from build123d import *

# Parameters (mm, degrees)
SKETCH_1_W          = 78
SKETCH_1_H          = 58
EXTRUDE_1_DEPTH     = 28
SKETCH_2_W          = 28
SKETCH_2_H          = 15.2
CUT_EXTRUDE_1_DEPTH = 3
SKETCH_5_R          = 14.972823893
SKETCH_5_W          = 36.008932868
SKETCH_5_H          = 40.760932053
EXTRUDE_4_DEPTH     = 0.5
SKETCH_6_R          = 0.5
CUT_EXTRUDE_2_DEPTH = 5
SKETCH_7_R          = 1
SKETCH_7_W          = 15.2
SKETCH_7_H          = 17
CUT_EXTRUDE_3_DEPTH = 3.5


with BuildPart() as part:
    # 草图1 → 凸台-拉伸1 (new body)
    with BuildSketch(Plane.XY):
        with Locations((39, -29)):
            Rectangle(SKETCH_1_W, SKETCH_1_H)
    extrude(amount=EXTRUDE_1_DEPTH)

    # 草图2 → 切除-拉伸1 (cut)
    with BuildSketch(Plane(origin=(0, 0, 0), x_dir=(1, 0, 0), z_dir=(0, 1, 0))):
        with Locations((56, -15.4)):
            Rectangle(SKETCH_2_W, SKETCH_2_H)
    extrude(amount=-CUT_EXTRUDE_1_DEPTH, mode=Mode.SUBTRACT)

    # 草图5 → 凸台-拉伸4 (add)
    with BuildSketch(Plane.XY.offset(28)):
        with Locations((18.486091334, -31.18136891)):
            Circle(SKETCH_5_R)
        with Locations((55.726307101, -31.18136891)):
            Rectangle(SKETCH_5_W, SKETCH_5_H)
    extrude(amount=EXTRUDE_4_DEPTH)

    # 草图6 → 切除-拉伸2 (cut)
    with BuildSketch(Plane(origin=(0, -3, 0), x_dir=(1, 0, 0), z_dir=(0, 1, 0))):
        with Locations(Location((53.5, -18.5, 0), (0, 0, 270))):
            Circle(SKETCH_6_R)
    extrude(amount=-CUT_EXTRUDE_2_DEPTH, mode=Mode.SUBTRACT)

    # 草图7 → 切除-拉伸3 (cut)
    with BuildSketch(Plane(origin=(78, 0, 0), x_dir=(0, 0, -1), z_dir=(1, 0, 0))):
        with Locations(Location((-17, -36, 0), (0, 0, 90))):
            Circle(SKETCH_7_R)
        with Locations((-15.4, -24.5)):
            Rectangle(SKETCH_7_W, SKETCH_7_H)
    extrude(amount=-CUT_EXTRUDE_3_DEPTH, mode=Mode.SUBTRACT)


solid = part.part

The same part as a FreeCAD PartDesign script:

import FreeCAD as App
import Part
import Sketcher

V = App.Vector

doc = App.newDocument("Part")
body = doc.addObject("PartDesign::Body", "Body")

# Sketch on XY plane
sketch1 = body.newObject("Sketcher::SketchObject", "Sketch")
sketch1.AttachmentSupport = (doc.getObject("XY_Plane"), [""])
sketch1.MapMode = "FlatFace"
sketch1.addGeometry([
    Part.LineSegment(V(0, 0, 0), V(0, -58, 0)),
    Part.LineSegment(V(0, -58, 0), V(78, -58, 0)),
    Part.LineSegment(V(78, -58, 0), V(78, 0, 0)),
    Part.LineSegment(V(78, 0, 0), V(0, 0, 0)),
], False)
sketch1.addConstraint([
    Sketcher.Constraint("Coincident", 0, 2, 1, 1),
    Sketcher.Constraint("Coincident", 1, 2, 2, 1),
    Sketcher.Constraint("Coincident", 2, 2, 3, 1),
    Sketcher.Constraint("Coincident", 3, 2, 0, 1),
    Sketcher.Constraint("Vertical", 0),
    Sketcher.Constraint("Horizontal", 1),
    Sketcher.Constraint("Vertical", 2),
    Sketcher.Constraint("Horizontal", 3),
    Sketcher.Constraint("Coincident", 3, 2, -1, 1),
    Sketcher.Constraint("DistanceX", 1, 1, 1, 2, 78.0),
    Sketcher.Constraint("DistanceY", 0, 2, 0, 1, 58.0),
])
pad1 = body.newObject("PartDesign::Pad", "Pad")
pad1.Profile = sketch1
pad1.Length = 28

# Sketch on XZ plane
sketch2 = body.newObject("Sketcher::SketchObject", "Sketch001")
sketch2.AttachmentSupport = (doc.getObject("XZ_Plane"), [""])
sketch2.MapMode = "FlatFace"
sketch2.addGeometry([
    Part.LineSegment(V(42, 7.8, 0), V(42, 23, 0)),
    Part.LineSegment(V(42, 23, 0), V(70, 23, 0)),
    Part.LineSegment(V(70, 23, 0), V(70, 7.8, 0)),
    Part.LineSegment(V(70, 7.8, 0), V(42, 7.8, 0)),
], False)
sketch2.addConstraint([
    Sketcher.Constraint("Coincident", 0, 2, 1, 1),
    Sketcher.Constraint("Coincident", 1, 2, 2, 1),
    Sketcher.Constraint("Coincident", 2, 2, 3, 1),
    Sketcher.Constraint("Coincident", 3, 2, 0, 1),
    Sketcher.Constraint("Vertical", 0),
    Sketcher.Constraint("Horizontal", 1),
    Sketcher.Constraint("Vertical", 2),
    Sketcher.Constraint("Horizontal", 3),
    Sketcher.Constraint("DistanceX", 1, 1, 1, 2, 28.0),
    Sketcher.Constraint("DistanceY", 0, 1, 0, 2, 15.2),
    Sketcher.Constraint("DistanceX", -1, 1, 0, 2, 42.0),
    Sketcher.Constraint("DistanceY", -1, 1, 0, 2, 23.0),
])
pocket1 = body.newObject("PartDesign::Pocket", "Pocket")
pocket1.Profile = sketch2
pocket1.Length = 3
pocket1.Reversed = True

# Sketch on XY plane
sketch3 = body.newObject("Sketcher::SketchObject", "Sketch002")
sketch3.AttachmentSupport = (doc.getObject("XY_Plane"), [""])
sketch3.MapMode = "FlatFace"
sketch3.AttachmentOffset = App.Placement(V(0, 0, 28), App.Rotation())
sketch3.addGeometry([
    Part.Circle(V(18.486091, -31.181369, 0), V(0, 0, 1), 14.972824),  # 0
    Part.LineSegment(V(37.721841, -10.800903, 0), V(37.721841, -51.561835, 0)),  # 1
    Part.LineSegment(V(37.721841, -51.561835, 0), V(73.730774, -51.561835, 0)),  # 2
    Part.LineSegment(V(73.730774, -51.561835, 0), V(73.730774, -10.800903, 0)),  # 3
    Part.LineSegment(V(73.730774, -10.800903, 0), V(37.721841, -10.800903, 0)),  # 4
], False)
sketch3.addConstraint([
    Sketcher.Constraint("Coincident", 1, 2, 2, 1),
    Sketcher.Constraint("Coincident", 2, 2, 3, 1),
    Sketcher.Constraint("Coincident", 3, 2, 4, 1),
    Sketcher.Constraint("Coincident", 4, 2, 1, 1),
    Sketcher.Constraint("Vertical", 1),
    Sketcher.Constraint("Horizontal", 2),
    Sketcher.Constraint("Vertical", 3),
    Sketcher.Constraint("Horizontal", 4),
    Sketcher.Constraint("Diameter", 0, 29.945648),
    Sketcher.Constraint("DistanceX", 2, 1, 2, 2, 36.008933),
    Sketcher.Constraint("DistanceY", 1, 2, 1, 1, 40.760932),
    Sketcher.Constraint("DistanceX", -1, 1, 0, 3, 18.486091),
    Sketcher.Constraint("DistanceY", 0, 3, -1, 1, 31.181369),
    Sketcher.Constraint("DistanceX", -1, 1, 1, 2, 37.721841),
    Sketcher.Constraint("DistanceY", 1, 2, -1, 1, 51.561835),
])
pad2 = body.newObject("PartDesign::Pad", "Pad001")
pad2.Profile = sketch3
pad2.Length = 0.5

# Sketch on XZ plane
sketch4 = body.newObject("Sketcher::SketchObject", "Sketch003")
sketch4.AttachmentSupport = (doc.getObject("XZ_Plane"), [""])
sketch4.MapMode = "FlatFace"
sketch4.AttachmentOffset = App.Placement(V(0, 0, 3), App.Rotation())
sketch4.addGeometry(Part.Circle(V(53.5, 18.5, 0), V(0, 0, 1), 0.5), False)
sketch4.addConstraint([
    Sketcher.Constraint("Diameter", 0, 1.0),
    Sketcher.Constraint("DistanceX", -1, 1, 0, 3, 53.5),
    Sketcher.Constraint("DistanceY", -1, 1, 0, 3, 18.5),
])
pocket2 = body.newObject("PartDesign::Pocket", "Pocket001")
pocket2.Profile = sketch4
pocket2.Length = 5
pocket2.Reversed = True

# Sketch on YZ plane
sketch5 = body.newObject("Sketcher::SketchObject", "Sketch004")
sketch5.AttachmentSupport = (doc.getObject("YZ_Plane"), [""])
sketch5.MapMode = "FlatFace"
sketch5.AttachmentOffset = App.Placement(V(0, 0, 78), App.Rotation())
sketch5.addGeometry([
    Part.Circle(V(-36, 17, 0), V(0, 0, 1), 1),  # 0
    Part.LineSegment(V(-16, 23, 0), V(-33, 23, 0)),  # 1
    Part.LineSegment(V(-33, 23, 0), V(-33, 7.8, 0)),  # 2
    Part.LineSegment(V(-33, 7.8, 0), V(-16, 7.8, 0)),  # 3
    Part.LineSegment(V(-16, 7.8, 0), V(-16, 23, 0)),  # 4
], False)
sketch5.addConstraint([
    Sketcher.Constraint("Coincident", 1, 2, 2, 1),
    Sketcher.Constraint("Coincident", 2, 2, 3, 1),
    Sketcher.Constraint("Coincident", 3, 2, 4, 1),
    Sketcher.Constraint("Coincident", 4, 2, 1, 1),
    Sketcher.Constraint("Horizontal", 1),
    Sketcher.Constraint("Vertical", 2),
    Sketcher.Constraint("Horizontal", 3),
    Sketcher.Constraint("Vertical", 4),
    Sketcher.Constraint("Diameter", 0, 2.0),
    Sketcher.Constraint("DistanceX", 1, 2, 1, 1, 17.0),
    Sketcher.Constraint("DistanceY", 2, 2, 2, 1, 15.2),
    Sketcher.Constraint("DistanceX", 0, 3, -1, 1, 36.0),
    Sketcher.Constraint("DistanceY", -1, 1, 0, 3, 17.0),
    Sketcher.Constraint("DistanceX", 1, 2, -1, 1, 33.0),
    Sketcher.Constraint("DistanceY", -1, 1, 1, 2, 23.0),
])
pocket3 = body.newObject("PartDesign::Pocket", "Pocket002")
pocket3.Profile = sketch5
pocket3.Length = 3.5

doc.recompute()
